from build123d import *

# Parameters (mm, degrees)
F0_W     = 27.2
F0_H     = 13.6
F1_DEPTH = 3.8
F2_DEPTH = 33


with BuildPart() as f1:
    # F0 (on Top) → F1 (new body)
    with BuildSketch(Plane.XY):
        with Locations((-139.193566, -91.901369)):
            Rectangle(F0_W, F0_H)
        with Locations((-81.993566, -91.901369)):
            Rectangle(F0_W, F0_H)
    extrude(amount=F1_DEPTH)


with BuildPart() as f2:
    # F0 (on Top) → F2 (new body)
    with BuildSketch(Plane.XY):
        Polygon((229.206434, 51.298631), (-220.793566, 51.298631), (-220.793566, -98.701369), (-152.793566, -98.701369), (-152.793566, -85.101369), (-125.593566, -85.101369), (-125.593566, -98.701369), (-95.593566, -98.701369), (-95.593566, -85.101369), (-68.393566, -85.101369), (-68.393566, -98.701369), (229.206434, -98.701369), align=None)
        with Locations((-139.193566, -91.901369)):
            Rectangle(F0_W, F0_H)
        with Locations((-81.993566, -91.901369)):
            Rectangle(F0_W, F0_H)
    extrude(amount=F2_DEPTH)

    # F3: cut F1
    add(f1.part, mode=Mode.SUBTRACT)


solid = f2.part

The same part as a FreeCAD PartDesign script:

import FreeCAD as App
import Part
import Sketcher

V = App.Vector


def add_polygon(sketch, points):
    """Adds a closed chain of lines whose ends are joined by coincident constraints."""
    first, n = sketch.GeometryCount, len(points)
    for a, b in zip(points, points[1:] + points[:1]):
        sketch.addGeometry(Part.LineSegment(App.Vector(*a, 0), App.Vector(*b, 0)), False)
    for i in range(n):
        sketch.addConstraint(Sketcher.Constraint("Coincident", first + i, 2, first + (i + 1) % n, 1))

doc = App.newDocument("Part")
params = doc.addObject("Spreadsheet::Sheet", "Params")
for row, (alias, value) in enumerate([
    ("sketch1_width", "27.2 mm"),
    ("sketch1_height", "13.6 mm"),
    ("pad1_length", "3.8 mm"),
    ("sketch2_width", "450 mm"),
    ("sketch2_height", "150 mm"),
    ("pad2_length", "33 mm"),
], start=1):
    params.set(f"A{row}", alias)
    params.set(f"B{row}", "=" + value)
    params.setAlias(f"B{row}", alias)

body = doc.addObject("PartDesign::Body", "Body")
body.AllowCompound = True

sketch1 = body.newObject("Sketcher::SketchObject", "Sketch")
sketch1.AttachmentSupport = (doc.getObject("XY_Plane"), [""])
sketch1.MapMode = "FlatFace"
add_polygon(sketch1, [(-153, -85), (-153, -99), (-126, -99), (-126, -85)])
add_polygon(sketch1, [(-96, -85), (-96, -99), (-68, -99), (-68, -85)])
sketch1.addConstraint([
    Sketcher.Constraint("Vertical", 0),
    Sketcher.Constraint("Horizontal", 1),
    Sketcher.Constraint("Vertical", 2),
    Sketcher.Constraint("Horizontal", 3),
    Sketcher.Constraint("Vertical", 4),
    Sketcher.Constraint("Horizontal", 5),
    Sketcher.Constraint("Vertical", 6),
    Sketcher.Constraint("Horizontal", 7),
    Sketcher.Constraint("Horizontal", 1, 2, 4, 2),
    Sketcher.Constraint("Horizontal", 3, 2, 6, 2),
    Sketcher.Constraint("Equal", 3, 5),
    Sketcher.Constraint("DistanceX", 1, 1, 1, 2, 27.2),
    Sketcher.Constraint("DistanceY", 0, 2, 0, 1, 13.6),
    Sketcher.Constraint("DistanceX", 1, 2, 4, 2, 30.0),
    Sketcher.Constraint("DistanceY", 0, 2, -1, 1, 98.701369),
    Sketcher.Constraint("DistanceX", 0, 2, -1, 1, 152.793566),
])
sketch1.setExpression("Constraints[19]", "Params.sketch1_width")
sketch1.setExpression("Constraints[20]", "Params.sketch1_height")
pad1 = body.newObject("PartDesign::Pad", "Pad")
pad1.Profile = sketch1
pad1.setExpression("Length", "Params.pad1_length")
body2 = doc.addObject("PartDesign::Body", "Body001")

sketch2 = body2.newObject("Sketcher::SketchObject", "Sketch001")
sketch2.AttachmentSupport = (doc.getObject("XY_Plane001"), [""])
sketch2.MapMode = "FlatFace"
add_polygon(sketch2, [(229, 51), (-221, 51), (-221, -99), (229, -99)])
sketch2.addConstraint([
    Sketcher.Constraint("Horizontal", 0),
    Sketcher.Constraint("Vertical", 1),
    Sketcher.Constraint("Horizontal", 2),
    Sketcher.Constraint("Vertical", 3),
    Sketcher.Constraint("DistanceX", 0, 2, 0, 1, 450.0),
    Sketcher.Constraint("DistanceY", 1, 2, 1, 1, 150.0),
    Sketcher.Constraint("DistanceY", -1, 1, 0, 2, 51.298631),
    Sketcher.Constraint("DistanceX", 0, 2, -1, 1, 220.793566),
])
sketch2.setExpression("Constraints[8]", "Params.sketch2_width")
sketch2.setExpression("Constraints[9]", "Params.sketch2_height")
pad2 = body2.newObject("PartDesign::Pad", "Pad001")
pad2.Profile = sketch2
pad2.setExpression("Length", "Params.pad2_length")
doc.recompute()

boolean = body2.newObject("PartDesign::Boolean", "Boolean")
boolean.Type = "Cut"
boolean.addObjects([body])

doc.recompute()
